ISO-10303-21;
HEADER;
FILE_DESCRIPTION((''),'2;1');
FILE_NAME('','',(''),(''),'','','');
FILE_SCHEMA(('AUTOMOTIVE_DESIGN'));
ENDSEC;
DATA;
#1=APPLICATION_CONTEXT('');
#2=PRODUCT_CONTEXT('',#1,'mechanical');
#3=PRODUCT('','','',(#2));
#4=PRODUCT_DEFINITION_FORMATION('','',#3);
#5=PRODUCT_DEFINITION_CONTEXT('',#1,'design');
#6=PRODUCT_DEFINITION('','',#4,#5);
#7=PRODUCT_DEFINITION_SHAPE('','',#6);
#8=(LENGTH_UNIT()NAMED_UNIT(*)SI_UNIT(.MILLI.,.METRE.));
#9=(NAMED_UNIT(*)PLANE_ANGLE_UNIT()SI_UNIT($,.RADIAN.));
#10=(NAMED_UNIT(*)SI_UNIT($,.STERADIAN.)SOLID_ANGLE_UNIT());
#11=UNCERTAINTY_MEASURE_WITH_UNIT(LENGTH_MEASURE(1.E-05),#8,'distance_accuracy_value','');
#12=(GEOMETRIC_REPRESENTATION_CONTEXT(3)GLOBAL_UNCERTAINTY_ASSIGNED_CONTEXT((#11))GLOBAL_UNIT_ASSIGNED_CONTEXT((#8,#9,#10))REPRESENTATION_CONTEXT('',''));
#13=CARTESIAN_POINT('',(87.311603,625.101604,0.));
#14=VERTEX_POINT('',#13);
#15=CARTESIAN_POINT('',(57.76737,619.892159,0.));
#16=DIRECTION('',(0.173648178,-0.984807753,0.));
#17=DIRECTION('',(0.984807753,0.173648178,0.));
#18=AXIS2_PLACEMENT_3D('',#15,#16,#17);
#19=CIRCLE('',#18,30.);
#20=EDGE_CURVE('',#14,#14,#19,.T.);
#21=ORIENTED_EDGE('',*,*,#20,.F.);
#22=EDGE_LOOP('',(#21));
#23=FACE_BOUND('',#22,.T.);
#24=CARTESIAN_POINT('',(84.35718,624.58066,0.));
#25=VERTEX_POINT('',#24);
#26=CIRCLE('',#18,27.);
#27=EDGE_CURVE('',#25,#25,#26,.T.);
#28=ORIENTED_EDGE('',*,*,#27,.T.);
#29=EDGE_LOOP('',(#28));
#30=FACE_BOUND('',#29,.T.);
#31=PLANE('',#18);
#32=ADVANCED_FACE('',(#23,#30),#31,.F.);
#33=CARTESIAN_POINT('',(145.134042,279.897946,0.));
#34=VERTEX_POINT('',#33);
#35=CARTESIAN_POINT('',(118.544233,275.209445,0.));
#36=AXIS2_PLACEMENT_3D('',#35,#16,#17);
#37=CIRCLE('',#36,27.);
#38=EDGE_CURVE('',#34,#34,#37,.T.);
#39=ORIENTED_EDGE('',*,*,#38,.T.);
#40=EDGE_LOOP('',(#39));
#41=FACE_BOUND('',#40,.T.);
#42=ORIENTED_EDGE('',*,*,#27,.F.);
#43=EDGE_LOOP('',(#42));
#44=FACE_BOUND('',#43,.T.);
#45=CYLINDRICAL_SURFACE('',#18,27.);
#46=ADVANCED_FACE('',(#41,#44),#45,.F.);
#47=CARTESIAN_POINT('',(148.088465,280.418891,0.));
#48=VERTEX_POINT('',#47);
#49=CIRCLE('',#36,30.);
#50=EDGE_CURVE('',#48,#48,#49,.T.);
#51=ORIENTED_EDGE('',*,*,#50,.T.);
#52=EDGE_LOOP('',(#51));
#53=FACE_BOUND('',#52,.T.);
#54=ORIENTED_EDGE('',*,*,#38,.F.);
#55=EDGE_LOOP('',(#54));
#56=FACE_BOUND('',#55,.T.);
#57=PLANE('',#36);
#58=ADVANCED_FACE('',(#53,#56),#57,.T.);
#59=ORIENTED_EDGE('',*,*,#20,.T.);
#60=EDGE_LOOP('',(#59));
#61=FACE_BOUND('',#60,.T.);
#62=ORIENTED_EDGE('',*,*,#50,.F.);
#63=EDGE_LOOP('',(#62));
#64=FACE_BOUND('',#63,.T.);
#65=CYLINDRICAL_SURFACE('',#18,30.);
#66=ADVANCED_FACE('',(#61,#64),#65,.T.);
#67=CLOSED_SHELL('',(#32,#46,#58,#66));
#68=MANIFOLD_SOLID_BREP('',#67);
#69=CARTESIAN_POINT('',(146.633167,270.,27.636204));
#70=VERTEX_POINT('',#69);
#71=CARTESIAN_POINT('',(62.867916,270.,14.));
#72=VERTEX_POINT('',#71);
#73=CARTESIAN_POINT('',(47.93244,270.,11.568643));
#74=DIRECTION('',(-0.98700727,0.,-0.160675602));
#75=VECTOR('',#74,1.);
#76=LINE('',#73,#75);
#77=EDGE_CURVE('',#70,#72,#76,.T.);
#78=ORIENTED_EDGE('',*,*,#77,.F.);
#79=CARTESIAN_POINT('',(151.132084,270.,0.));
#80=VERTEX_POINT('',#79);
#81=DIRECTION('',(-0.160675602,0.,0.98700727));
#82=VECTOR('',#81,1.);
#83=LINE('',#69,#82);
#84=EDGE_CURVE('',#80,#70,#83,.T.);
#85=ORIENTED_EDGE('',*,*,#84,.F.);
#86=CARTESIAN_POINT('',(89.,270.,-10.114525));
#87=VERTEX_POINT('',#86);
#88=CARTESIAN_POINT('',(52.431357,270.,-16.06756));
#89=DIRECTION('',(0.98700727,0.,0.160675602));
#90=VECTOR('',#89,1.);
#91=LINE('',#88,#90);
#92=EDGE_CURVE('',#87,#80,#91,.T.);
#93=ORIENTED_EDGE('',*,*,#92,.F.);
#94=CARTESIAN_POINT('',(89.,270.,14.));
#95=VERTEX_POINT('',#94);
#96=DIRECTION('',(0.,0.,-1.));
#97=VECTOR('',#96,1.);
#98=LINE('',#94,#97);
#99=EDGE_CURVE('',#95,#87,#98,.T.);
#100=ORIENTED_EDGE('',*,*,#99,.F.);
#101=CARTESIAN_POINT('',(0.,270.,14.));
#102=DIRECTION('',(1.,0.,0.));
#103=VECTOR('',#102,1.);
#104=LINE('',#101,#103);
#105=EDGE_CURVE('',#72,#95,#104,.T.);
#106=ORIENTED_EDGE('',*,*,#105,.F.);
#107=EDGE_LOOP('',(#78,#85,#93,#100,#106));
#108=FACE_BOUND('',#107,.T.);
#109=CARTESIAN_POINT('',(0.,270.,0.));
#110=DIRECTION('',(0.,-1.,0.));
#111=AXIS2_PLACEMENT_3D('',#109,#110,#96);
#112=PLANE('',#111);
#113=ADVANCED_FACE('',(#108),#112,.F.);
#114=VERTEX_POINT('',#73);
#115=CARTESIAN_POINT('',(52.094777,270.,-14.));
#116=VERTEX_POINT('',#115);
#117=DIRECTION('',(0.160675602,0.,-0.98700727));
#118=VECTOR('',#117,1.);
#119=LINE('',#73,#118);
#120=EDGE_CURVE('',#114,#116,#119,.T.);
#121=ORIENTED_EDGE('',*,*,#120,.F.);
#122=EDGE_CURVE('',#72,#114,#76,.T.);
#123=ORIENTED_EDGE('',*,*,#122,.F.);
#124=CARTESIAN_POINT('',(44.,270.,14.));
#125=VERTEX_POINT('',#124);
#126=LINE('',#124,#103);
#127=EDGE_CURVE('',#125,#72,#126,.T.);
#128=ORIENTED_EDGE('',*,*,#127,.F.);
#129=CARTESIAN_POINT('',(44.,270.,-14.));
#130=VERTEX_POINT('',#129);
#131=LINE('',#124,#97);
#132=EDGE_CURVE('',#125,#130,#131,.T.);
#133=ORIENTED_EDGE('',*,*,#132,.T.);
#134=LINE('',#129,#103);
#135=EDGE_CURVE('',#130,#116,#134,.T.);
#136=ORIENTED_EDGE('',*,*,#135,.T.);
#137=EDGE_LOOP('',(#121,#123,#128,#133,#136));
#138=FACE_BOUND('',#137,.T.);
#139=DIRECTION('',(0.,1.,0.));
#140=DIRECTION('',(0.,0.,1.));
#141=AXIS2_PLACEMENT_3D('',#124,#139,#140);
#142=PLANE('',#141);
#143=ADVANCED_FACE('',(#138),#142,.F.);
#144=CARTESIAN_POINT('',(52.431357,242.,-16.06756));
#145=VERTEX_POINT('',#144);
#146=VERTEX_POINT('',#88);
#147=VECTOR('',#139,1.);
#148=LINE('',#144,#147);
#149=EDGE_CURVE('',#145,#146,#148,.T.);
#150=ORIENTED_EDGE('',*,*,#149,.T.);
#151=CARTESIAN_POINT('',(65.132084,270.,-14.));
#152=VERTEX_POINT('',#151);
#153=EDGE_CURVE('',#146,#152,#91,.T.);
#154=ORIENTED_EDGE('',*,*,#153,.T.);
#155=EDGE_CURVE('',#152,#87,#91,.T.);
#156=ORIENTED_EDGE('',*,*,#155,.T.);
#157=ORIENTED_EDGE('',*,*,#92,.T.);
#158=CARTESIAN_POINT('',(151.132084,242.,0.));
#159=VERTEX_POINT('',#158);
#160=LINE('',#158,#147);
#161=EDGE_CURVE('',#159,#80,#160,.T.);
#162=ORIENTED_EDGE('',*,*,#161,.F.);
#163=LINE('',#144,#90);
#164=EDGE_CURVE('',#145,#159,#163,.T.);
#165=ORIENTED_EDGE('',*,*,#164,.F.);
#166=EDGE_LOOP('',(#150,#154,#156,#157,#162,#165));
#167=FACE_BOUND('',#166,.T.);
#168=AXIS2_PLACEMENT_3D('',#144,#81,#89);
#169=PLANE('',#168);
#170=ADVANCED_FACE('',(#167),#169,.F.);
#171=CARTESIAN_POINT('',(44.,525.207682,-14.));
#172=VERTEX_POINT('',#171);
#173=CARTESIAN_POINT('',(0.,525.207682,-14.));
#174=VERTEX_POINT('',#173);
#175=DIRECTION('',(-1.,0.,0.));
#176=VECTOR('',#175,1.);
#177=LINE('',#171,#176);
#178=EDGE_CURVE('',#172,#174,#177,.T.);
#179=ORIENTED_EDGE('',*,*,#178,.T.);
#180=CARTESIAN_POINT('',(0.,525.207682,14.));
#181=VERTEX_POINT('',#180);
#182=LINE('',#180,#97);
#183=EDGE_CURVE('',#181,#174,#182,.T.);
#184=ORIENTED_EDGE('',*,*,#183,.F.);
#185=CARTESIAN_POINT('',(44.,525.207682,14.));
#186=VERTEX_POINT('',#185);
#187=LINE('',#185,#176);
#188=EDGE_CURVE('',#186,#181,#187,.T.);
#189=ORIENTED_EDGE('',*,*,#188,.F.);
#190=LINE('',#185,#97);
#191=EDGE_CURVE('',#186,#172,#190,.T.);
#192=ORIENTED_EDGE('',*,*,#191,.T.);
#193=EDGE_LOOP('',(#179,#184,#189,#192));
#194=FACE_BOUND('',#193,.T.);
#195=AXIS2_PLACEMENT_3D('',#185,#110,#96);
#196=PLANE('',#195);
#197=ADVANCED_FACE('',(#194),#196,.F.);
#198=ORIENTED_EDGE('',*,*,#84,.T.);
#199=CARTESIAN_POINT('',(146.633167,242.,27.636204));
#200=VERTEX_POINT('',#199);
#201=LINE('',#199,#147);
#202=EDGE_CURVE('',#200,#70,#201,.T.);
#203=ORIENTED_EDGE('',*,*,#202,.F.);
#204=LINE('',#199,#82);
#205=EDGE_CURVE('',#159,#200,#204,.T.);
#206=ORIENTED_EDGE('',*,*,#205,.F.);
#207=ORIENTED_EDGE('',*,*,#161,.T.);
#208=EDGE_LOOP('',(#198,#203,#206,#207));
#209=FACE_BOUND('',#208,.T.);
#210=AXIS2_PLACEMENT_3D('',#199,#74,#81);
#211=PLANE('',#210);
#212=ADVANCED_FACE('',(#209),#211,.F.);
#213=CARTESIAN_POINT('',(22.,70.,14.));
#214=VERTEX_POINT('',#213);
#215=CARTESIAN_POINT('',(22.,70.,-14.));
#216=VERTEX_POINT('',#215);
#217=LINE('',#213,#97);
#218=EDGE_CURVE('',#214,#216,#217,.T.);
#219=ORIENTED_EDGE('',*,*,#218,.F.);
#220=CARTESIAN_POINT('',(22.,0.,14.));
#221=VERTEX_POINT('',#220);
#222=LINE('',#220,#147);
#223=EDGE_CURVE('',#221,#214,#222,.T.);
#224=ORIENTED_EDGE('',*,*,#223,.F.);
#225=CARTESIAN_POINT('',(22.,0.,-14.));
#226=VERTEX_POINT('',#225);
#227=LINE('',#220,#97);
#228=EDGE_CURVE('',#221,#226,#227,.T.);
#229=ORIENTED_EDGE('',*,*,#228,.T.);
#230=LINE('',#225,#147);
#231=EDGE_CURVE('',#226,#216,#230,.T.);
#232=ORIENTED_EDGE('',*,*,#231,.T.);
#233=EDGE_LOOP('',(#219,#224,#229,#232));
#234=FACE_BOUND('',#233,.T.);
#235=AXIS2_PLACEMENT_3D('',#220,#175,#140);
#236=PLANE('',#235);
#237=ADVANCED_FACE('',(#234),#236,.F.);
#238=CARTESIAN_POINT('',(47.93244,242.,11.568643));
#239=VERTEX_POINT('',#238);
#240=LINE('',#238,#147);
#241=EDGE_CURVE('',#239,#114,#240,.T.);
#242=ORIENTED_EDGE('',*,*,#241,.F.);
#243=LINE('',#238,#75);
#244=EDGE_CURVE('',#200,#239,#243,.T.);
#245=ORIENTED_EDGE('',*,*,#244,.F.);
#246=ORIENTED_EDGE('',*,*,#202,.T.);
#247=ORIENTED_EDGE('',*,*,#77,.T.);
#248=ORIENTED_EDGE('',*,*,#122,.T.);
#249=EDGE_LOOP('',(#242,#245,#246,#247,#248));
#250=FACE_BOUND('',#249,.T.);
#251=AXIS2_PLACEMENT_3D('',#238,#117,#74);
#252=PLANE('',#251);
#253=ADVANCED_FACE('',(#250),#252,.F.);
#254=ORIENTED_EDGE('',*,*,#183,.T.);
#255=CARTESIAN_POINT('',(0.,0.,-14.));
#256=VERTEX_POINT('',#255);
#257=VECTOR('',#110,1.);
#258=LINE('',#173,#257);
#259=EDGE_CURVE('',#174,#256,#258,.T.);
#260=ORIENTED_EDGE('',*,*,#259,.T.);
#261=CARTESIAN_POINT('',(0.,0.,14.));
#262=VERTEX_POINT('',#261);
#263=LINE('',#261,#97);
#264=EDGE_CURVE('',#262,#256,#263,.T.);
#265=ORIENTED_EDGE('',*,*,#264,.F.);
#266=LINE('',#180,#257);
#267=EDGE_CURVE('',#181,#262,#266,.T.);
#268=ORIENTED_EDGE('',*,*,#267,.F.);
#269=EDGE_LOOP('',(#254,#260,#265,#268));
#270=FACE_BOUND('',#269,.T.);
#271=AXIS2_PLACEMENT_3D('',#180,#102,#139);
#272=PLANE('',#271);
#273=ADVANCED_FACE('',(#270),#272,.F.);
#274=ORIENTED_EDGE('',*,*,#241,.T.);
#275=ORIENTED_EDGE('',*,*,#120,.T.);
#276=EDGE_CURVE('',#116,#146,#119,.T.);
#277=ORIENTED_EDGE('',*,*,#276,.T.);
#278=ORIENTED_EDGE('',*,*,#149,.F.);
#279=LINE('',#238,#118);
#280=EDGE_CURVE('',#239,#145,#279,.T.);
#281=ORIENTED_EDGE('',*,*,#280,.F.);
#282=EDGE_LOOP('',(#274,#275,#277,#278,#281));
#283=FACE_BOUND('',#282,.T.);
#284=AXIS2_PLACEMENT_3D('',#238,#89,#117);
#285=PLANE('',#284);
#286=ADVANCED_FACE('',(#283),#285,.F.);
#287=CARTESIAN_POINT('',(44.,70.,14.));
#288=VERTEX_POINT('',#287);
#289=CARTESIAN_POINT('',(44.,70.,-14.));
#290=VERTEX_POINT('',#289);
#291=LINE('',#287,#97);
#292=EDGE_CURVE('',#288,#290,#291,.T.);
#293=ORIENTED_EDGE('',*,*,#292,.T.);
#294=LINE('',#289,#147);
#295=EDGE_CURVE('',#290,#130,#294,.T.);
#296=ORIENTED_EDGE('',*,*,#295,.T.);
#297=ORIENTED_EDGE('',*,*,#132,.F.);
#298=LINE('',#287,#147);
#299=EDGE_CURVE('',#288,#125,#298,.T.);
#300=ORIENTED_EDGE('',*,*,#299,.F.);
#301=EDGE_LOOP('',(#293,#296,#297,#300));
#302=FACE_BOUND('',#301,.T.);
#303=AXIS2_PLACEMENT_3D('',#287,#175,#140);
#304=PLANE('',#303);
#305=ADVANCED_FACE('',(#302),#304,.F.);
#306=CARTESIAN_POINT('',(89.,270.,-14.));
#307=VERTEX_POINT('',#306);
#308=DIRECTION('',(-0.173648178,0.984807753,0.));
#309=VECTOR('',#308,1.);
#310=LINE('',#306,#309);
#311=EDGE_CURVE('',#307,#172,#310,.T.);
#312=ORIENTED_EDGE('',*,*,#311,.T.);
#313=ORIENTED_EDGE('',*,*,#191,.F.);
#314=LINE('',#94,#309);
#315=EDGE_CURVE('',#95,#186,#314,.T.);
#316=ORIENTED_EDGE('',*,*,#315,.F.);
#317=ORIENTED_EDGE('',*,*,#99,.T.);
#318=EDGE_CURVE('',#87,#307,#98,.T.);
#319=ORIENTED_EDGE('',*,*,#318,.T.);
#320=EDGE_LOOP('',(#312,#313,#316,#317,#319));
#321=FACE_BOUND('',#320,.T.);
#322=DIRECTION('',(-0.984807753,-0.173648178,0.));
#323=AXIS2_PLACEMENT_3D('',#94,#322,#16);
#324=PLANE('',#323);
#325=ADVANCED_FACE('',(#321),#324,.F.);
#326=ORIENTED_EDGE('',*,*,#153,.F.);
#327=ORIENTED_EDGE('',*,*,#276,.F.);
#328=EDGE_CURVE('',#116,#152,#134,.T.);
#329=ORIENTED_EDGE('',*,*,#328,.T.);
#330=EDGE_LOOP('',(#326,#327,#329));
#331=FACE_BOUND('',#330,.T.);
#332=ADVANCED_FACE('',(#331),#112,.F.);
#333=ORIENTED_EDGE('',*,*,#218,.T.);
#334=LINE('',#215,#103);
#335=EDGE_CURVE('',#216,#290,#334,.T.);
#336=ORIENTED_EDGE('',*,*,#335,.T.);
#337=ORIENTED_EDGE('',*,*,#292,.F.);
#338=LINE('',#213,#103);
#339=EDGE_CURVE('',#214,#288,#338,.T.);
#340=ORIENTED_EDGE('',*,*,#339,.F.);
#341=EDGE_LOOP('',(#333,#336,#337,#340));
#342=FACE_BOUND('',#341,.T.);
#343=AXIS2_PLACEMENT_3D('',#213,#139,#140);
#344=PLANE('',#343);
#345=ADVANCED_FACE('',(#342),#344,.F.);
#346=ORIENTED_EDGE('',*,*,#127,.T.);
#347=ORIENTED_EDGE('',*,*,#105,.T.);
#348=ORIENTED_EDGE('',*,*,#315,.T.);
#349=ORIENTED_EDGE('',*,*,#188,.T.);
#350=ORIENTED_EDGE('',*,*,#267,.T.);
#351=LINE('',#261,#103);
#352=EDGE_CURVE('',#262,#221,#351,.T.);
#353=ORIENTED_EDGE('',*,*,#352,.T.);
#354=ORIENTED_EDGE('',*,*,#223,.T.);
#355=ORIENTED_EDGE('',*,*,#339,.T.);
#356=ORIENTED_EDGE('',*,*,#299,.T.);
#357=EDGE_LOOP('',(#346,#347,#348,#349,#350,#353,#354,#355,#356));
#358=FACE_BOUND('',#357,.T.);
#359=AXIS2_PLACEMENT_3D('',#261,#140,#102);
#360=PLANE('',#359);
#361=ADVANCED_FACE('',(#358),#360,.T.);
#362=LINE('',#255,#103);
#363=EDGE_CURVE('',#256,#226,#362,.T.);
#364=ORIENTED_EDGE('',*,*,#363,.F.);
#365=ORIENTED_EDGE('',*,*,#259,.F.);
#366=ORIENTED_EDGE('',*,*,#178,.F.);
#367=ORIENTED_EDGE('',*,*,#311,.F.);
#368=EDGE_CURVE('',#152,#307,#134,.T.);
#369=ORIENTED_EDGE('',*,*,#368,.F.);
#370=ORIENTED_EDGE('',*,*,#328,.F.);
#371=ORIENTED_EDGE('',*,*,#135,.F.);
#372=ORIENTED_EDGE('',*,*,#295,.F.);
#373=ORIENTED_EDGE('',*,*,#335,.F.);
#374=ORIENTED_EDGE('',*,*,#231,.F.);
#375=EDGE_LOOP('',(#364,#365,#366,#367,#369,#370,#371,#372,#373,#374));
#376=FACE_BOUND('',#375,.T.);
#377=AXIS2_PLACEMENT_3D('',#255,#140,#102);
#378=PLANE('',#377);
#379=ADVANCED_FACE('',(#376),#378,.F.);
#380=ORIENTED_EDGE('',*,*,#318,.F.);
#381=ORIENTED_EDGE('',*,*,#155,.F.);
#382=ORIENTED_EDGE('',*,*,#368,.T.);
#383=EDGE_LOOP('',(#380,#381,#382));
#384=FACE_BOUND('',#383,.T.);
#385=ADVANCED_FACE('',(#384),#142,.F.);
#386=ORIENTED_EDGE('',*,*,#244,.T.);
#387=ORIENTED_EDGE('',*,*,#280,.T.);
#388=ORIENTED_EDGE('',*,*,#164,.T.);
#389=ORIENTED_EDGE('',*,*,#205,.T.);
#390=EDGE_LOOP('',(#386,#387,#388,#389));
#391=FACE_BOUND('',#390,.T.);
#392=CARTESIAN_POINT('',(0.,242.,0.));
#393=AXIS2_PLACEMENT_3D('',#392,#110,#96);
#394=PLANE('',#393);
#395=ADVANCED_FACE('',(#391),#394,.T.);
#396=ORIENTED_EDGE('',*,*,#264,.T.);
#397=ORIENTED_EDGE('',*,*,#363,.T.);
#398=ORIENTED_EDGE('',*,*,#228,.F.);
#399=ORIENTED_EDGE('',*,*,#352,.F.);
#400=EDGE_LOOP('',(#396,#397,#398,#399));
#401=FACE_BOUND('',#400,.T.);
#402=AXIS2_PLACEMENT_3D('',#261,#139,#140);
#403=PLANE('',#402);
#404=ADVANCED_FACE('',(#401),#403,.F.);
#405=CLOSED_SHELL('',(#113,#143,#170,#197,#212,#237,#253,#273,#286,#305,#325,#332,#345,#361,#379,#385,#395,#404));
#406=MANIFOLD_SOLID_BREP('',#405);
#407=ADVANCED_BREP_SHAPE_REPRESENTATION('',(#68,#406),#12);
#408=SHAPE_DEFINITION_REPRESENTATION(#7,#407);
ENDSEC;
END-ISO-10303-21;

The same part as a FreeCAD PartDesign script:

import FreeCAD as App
import Part
import Sketcher
Q = App.Units.Quantity

doc = App.newDocument("Part")
body = doc.addObject("PartDesign::Body", "Body")

# Sketch on XY plane
sketch1 = body.newObject("Sketcher::SketchObject", "Sketch")
sketch1.AttachmentSupport = (doc.getObject("XY_Plane"), [""])
sketch1.MapMode = "FlatFace"
sketch1.addGeometry([
    Part.LineSegment(App.Vector(0, 525.207682, 0), App.Vector(0, 0, 0)),  # 0
    Part.LineSegment(App.Vector(0, 0, 0), App.Vector(22, 0, 0)),  # 1
    Part.LineSegment(App.Vector(22, 0, 0), App.Vector(22, 70, 0)),  # 2
    Part.LineSegment(App.Vector(22, 70, 0), App.Vector(44, 70, 0)),  # 3
    Part.LineSegment(App.Vector(44, 70, 0), App.Vector(44, 270, 0)),  # 4
    Part.LineSegment(App.Vector(44, 270, 0), App.Vector(89, 270, 0)),  # 5
    Part.LineSegment(App.Vector(89, 270, 0), App.Vector(44, 525.207682, 0)),  # 6
    Part.LineSegment(App.Vector(44, 525.207682, 0), App.Vector(0, 525.207682, 0)),  # 7
], False)
sketch1.addConstraint([
    Sketcher.Constraint("Coincident", 0, 2, 1, 1),
    Sketcher.Constraint("Coincident", 1, 2, 2, 1),
    Sketcher.Constraint("Coincident", 2, 2, 3, 1),
    Sketcher.Constraint("Coincident", 3, 2, 4, 1),
    Sketcher.Constraint("Coincident", 4, 2, 5, 1),
    Sketcher.Constraint("Coincident", 5, 2, 6, 1),
    Sketcher.Constraint("Coincident", 6, 2, 7, 1),
    Sketcher.Constraint("Coincident", 7, 2, 0, 1),
    Sketcher.Constraint("Vertical", 0),
    Sketcher.Constraint("Horizontal", 1),
    Sketcher.Constraint("Vertical", 2),
    Sketcher.Constraint("Horizontal", 3),
    Sketcher.Constraint("Vertical", 4),
    Sketcher.Constraint("Horizontal", 5),
    Sketcher.Constraint("Horizontal", 7),
    Sketcher.Constraint("Coincident", 0, 2, -1, 1),
    Sketcher.Constraint("Vertical", 4, 2, 6, 2),
    Sketcher.Constraint("Equal", 1, 3),
    Sketcher.Constraint("DistanceX", 1, 1, 1, 2, 22.0),
    Sketcher.Constraint("DistanceX", 5, 1, 5, 2, 45.0),
    Sketcher.Constraint("DistanceY", 2, 1, 2, 2, 70.0),
    Sketcher.Constraint("DistanceY", 4, 1, 4, 2, 200.0),
    Sketcher.Constraint("Angle", 6, Q("100 deg")),
])
pad1 = body.newObject("PartDesign::Pad", "Pad")
pad1.Profile = sketch1
pad1.Length = 28
pad1.Midplane = True

# Sketch on XZ plane
sketch2 = body.newObject("Sketcher::SketchObject", "Sketch001")
sketch2.AttachmentSupport = (doc.getObject("XZ_Plane"), [""])
sketch2.MapMode = "FlatFace"
sketch2.AttachmentOffset = App.Placement(App.Vector(0, 0, -270), App.Rotation())
sketch2.addGeometry([
    Part.LineSegment(App.Vector(146.633167, 27.636204, 0), App.Vector(47.93244, 11.568643, 0)),
    Part.LineSegment(App.Vector(47.93244, 11.568643, 0), App.Vector(52.431357, -16.06756, 0)),
    Part.LineSegment(App.Vector(52.431357, -16.06756, 0), App.Vector(151.132084, 0, 0)),
    Part.LineSegment(App.Vector(151.132084, 0, 0), App.Vector(146.633167, 27.636204, 0)),
], False)
sketch2.addConstraint([
    Sketcher.Constraint("Coincident", 0, 2, 1, 1),
    Sketcher.Constraint("Coincident", 1, 2, 2, 1),
    Sketcher.Constraint("Coincident", 2, 2, 3, 1),
    Sketcher.Constraint("Coincident", 3, 2, 0, 1),
    Sketcher.Constraint("PointOnObject", 2, 2, -1),
    Sketcher.Constraint("Perpendicular", 0, 1),
    Sketcher.Constraint("Perpendicular", 1, 2),
    Sketcher.Constraint("Perpendicular", 2, 3),
    Sketcher.Constraint("Distance", 0, 100.0),
    Sketcher.Constraint("Distance", 1, 28.0),
    Sketcher.Constraint("DistanceX", -1, 1, 0, 2, 47.93244),
    Sketcher.Constraint("DistanceY", 1, 2, -1, 1, 16.06756),
])
pad2 = body.newObject("PartDesign::Pad", "Pad001")
pad2.Profile = sketch2
pad2.Length = 28
body2 = doc.addObject("PartDesign::Body", "Body001")

# Sketch on an angled plane
sketch3 = body2.newObject("Sketcher::SketchObject", "Sketch002")
sketch3.Placement = App.Placement(App.Vector(-43.489041, 246.638607, 0), App.Rotation(App.Vector(0, 0, -1), App.Vector(0.984807753, 0.173648178, 0), App.Vector(0.173648178, -0.984807753, 0), "ZXY"))
sketch3.addGeometry([
    Part.Circle(App.Vector(0, 164.532898, 0), App.Vector(0, 0, 1), 30),
    Part.Circle(App.Vector(0, 164.532898, 0), App.Vector(0, 0, 1), 27),
], False)
sketch3.addConstraint([
    Sketcher.Constraint("Coincident", 1, 3, 0, 3),
    Sketcher.Constraint("PointOnObject", 0, 3, -2),
    Sketcher.Constraint("Diameter", 0, 60.0),
    Sketcher.Constraint("Diameter", 1, 54.0),
    Sketcher.Constraint("DistanceY", -1, 1, 0, 3, 164.532898),
])
pad3 = body2.newObject("PartDesign::Pad", "Pad002")
pad3.Profile = sketch3
pad3.Length = 350
pad3.Reversed = True

doc.recompute()
